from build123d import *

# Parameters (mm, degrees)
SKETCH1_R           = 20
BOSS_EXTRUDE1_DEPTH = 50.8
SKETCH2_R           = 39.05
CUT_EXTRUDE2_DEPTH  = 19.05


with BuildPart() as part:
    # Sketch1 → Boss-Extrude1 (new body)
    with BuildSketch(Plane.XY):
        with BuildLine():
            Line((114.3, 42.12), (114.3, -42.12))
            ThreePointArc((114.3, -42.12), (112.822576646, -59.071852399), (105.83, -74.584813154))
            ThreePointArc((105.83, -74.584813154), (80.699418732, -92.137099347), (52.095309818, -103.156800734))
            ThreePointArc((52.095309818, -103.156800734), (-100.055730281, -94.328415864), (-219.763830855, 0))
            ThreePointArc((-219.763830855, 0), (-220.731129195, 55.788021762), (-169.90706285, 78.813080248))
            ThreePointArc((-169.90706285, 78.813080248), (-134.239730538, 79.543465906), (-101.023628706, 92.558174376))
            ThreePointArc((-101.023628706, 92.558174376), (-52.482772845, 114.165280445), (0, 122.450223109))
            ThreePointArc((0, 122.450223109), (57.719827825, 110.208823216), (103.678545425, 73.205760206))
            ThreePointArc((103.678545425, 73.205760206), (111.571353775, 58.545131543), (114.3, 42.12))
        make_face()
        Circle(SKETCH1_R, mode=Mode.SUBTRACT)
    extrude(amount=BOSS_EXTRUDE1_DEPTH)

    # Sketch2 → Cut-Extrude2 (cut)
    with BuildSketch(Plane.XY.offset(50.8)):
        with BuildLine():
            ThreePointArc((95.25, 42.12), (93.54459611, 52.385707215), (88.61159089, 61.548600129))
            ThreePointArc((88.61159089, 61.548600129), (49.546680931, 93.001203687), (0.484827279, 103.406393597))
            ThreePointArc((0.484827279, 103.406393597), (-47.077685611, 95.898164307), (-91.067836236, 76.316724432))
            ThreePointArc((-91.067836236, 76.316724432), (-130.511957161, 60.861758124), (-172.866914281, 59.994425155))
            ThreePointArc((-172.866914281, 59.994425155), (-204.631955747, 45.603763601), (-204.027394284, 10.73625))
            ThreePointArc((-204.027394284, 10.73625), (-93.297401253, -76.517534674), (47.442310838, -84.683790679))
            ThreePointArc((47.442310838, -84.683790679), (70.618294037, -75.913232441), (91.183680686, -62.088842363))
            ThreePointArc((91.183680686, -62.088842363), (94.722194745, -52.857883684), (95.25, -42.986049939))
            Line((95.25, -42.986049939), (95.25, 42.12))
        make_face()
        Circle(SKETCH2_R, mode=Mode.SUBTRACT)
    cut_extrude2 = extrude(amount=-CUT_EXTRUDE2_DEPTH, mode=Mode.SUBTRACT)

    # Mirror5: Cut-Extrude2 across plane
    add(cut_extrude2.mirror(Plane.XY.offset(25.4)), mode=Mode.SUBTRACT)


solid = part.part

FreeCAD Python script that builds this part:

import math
import FreeCAD as App
import Part
import Sketcher

V = App.Vector
Q = App.Units.Quantity

doc = App.newDocument("Part")
body = doc.addObject("PartDesign::Body", "Body")

sketch1 = body.newObject("Sketcher::SketchObject", "Sketch")
sketch1.AttachmentSupport = (doc.getObject("XY_Plane"), [""])
sketch1.MapMode = "FlatFace"
sketch1.addGeometry(Part.LineSegment(V(114, -42, 0), V(114, 42, 0)), False)
sketch1.addGeometry(Part.ArcOfCircle(Part.Circle(V(63, 42, 0), V(0, 0, 1), 51), math.radians(0), math.radians(38)), False)
sketch1.addGeometry(Part.ArcOfCircle(Part.Circle(V(3, -5, 0), V(0, 0, 1), 127), math.radians(38), math.radians(91)), False)
sketch1.addGeometry(Part.ArcOfCircle(Part.Circle(V(5, -81, 0), V(0, 0, 1), 203), math.radians(91), math.radians(122)), False)
sketch1.addGeometry(Part.ArcOfCircle(Part.Circle(V(-154, 179, 0), V(0, 0, 1), 102), math.radians(-99), math.radians(-58)), False)
sketch1.addGeometry(Part.ArcOfCircle(Part.Circle(V(-178, 29, 0), V(0, 0, 1), 51), math.radians(81), math.radians(214)), False)
sketch1.addGeometry(Part.ArcOfCircle(Part.Circle(V(-10, 143, 0), V(0, 0, 1), 254), math.radians(-146), math.radians(-76)), False)
sketch1.addGeometry(Part.ArcOfCircle(Part.Circle(V(21, 20, 0), V(0, 0, 1), 127), math.radians(-76), math.radians(-48)), False)
sketch1.addGeometry(Part.ArcOfCircle(Part.Circle(V(64, -46, 0), V(0, 0, 1), 51), math.radians(-34), math.radians(5)), False)
sketch1.addGeometry(Part.Circle(V(0, 0, 0), V(0, 0, 1), 20), False)
sketch1.addConstraint(Sketcher.Constraint("Tangent", 0, 2, 1, 1))
sketch1.addConstraint(Sketcher.Constraint("Tangent", 1, 2, 2, 1))
sketch1.addConstraint(Sketcher.Constraint("Tangent", 2, 2, 3, 1))
sketch1.addConstraint(Sketcher.Constraint("Tangent", 3, 2, 4, 2))
sketch1.addConstraint(Sketcher.Constraint("Tangent", 4, 1, 5, 1))
sketch1.addConstraint(Sketcher.Constraint("Tangent", 5, 2, 6, 1))
sketch1.addConstraint(Sketcher.Constraint("Tangent", 6, 2, 7, 1))
sketch1.addConstraint(Sketcher.Constraint("Coincident", 7, 2, 8, 1))
sketch1.addConstraint(Sketcher.Constraint("Coincident", 8, 2, 0, 1))
sketch1.addConstraint(Sketcher.Constraint("Vertical", 0))
sketch1.addConstraint(Sketcher.Constraint("Coincident", 9, 3, -1, 1))
sketch1.addConstraint(Sketcher.Constraint("Equal", 1, 5))
sketch1.addConstraint(Sketcher.Constraint("Equal", 2, 7))
sketch1.addConstraint(Sketcher.Constraint("Equal", 5, 8))
sketch1.addConstraint(Sketcher.Constraint("PointOnObject", 2, 2, -2))
sketch1.addConstraint(Sketcher.Constraint("PointOnObject", 5, 2, -1))
sketch1.addConstraint(Sketcher.Constraint("Radius", 1, Q("2 in")))
sketch1.addConstraint(Sketcher.Constraint("Radius", 2, Q("5 in")))
sketch1.addConstraint(Sketcher.Constraint("Radius", 3, Q("8 in")))
sketch1.addConstraint(Sketcher.Constraint("Radius", 4, Q("4 in")))
sketch1.addConstraint(Sketcher.Constraint("Radius", 6, Q("10 in")))
sketch1.addConstraint(Sketcher.Constraint("DistanceX", 5, 3, -1, 1, Q("7 in")))
sketch1.addConstraint(Sketcher.Constraint("DistanceX", -1, 1, 1, 3, Q("2.5 in")))
sketch1.addConstraint(Sketcher.Constraint("Diameter", 9, Q("40 mm")))
sketch1.addConstraint(Sketcher.Constraint("DistanceY", 7, 3, 1, 3, Q("0.871 in")))
sketch1.addConstraint(Sketcher.Constraint("DistanceY", 0, 1, 0, 2, Q("84.24 mm")))
sketch1.addConstraint(Sketcher.Constraint("DistanceY", -1, 1, 1, 3, Q("42.12 mm")))
sketch1.addConstraint(Sketcher.Constraint("DistanceY", -1, 1, 5, 3, Q("28.63 mm")))
sketch1.addConstraint(Sketcher.Constraint("DistanceX", -1, 1, 7, 2, Q("105.83 mm")))
sketch1.addConstraint(Sketcher.Constraint("DistanceY", 3, 3, 4, 3, Q("259.863199 mm")))
pad1 = body.newObject("PartDesign::Pad", "Pad")
pad1.Profile = sketch1
pad1.Length = Q("2 in")

sketch2 = body.newObject("Sketcher::SketchObject", "Sketch001")
sketch2.AttachmentSupport = (doc.getObject("XY_Plane"), [""])
sketch2.MapMode = "FlatFace"
sketch2.AttachmentOffset = App.Placement(V(0, 0, 2 * 25.4), App.Rotation())
sketch2.addGeometry(Part.ArcOfCircle(Part.Circle(V(64, 42, 0), V(0, 0, 1), 32), math.radians(0), math.radians(38)), False)
sketch2.addGeometry(Part.ArcOfCircle(Part.Circle(V(3, -5, 0), V(0, 0, 1), 108), math.radians(38), math.radians(91)), False)
sketch2.addGeometry(Part.ArcOfCircle(Part.Circle(V(5, -81, 0), V(0, 0, 1), 184), math.radians(91), math.radians(122)), False)
sketch2.addGeometry(Part.ArcOfCircle(Part.Circle(V(-154, 179, 0), V(0, 0, 1), 121), math.radians(-99), math.radians(-58)), False)
sketch2.addGeometry(Part.ArcOfCircle(Part.Circle(V(-178, 29, 0), V(0, 0, 1), 32), math.radians(81), math.radians(214)), False)
sketch2.addGeometry(Part.ArcOfCircle(Part.Circle(V(-10, 143, 0), V(0, 0, 1), 235), math.radians(-146), math.radians(-76)), False)
sketch2.addGeometry(Part.ArcOfCircle(Part.Circle(V(21, 20, 0), V(0, 0, 1), 108), math.radians(-76), math.radians(-49)), False)
sketch2.addGeometry(Part.ArcOfCircle(Part.Circle(V(64, -46, 0), V(0, 0, 1), 32), math.radians(-30), math.radians(6)), False)
sketch2.addGeometry(Part.LineSegment(V(95, -43, 0), V(95, 42, 0)), False)
sketch2.addGeometry(Part.Circle(V(0, 0, 0), V(0, 0, 1), 39), False)
sketch2.addConstraint(Sketcher.Constraint("Tangent", 0, 2, 1, 1))
sketch2.addConstraint(Sketcher.Constraint("Tangent", 1, 2, 2, 1))
sketch2.addConstraint(Sketcher.Constraint("Tangent", 2, 2, 3, 2))
sketch2.addConstraint(Sketcher.Constraint("Tangent", 3, 1, 4, 1))
sketch2.addConstraint(Sketcher.Constraint("Tangent", 4, 2, 5, 1))
sketch2.addConstraint(Sketcher.Constraint("Tangent", 5, 2, 6, 1))
sketch2.addConstraint(Sketcher.Constraint("Coincident", 6, 2, 7, 1))
sketch2.addConstraint(Sketcher.Constraint("Coincident", 7, 2, 8, 1))
sketch2.addConstraint(Sketcher.Constraint("Tangent", 8, 2, 0, 1))
sketch2.addConstraint(Sketcher.Constraint("Vertical", 8))
sketch2.addConstraint(Sketcher.Constraint("Coincident", 9, 3, -1, 1))
sketch2.addConstraint(Sketcher.Constraint("Equal", 0, 4))
sketch2.addConstraint(Sketcher.Constraint("Equal", 1, 6))
sketch2.addConstraint(Sketcher.Constraint("Equal", 4, 7))
sketch2.addConstraint(Sketcher.Constraint("Radius", 0, Q("1.25 in")))
sketch2.addConstraint(Sketcher.Constraint("Radius", 1, Q("4.25 in")))
sketch2.addConstraint(Sketcher.Constraint("Radius", 2, Q("7.25 in")))
sketch2.addConstraint(Sketcher.Constraint("Radius", 3, Q("4.75 in")))
sketch2.addConstraint(Sketcher.Constraint("Radius", 5, Q("9.25 in")))
sketch2.addConstraint(Sketcher.Constraint("DistanceX", 4, 3, -1, 1, Q("7 in")))
sketch2.addConstraint(Sketcher.Constraint("DistanceX", -1, 1, 0, 3, Q("2.5 in")))
sketch2.addConstraint(Sketcher.Constraint("Diameter", 9, Q("78.1 mm")))
sketch2.addConstraint(Sketcher.Constraint("DistanceY", 6, 3, 0, 3, Q("0.871 in")))
sketch2.addConstraint(Sketcher.Constraint("DistanceY", 8, 1, 8, 2, Q("85.10605 mm")))
sketch2.addConstraint(Sketcher.Constraint("DistanceY", -1, 1, 0, 3, Q("42.12 mm")))
sketch2.addConstraint(Sketcher.Constraint("DistanceY", -1, 1, 4, 3, Q("28.63 mm")))
sketch2.addConstraint(Sketcher.Constraint("DistanceY", -1, 1, 5, 3, Q("143.15 mm")))
sketch2.addConstraint(Sketcher.Constraint("DistanceY", -1, 1, 0, 2, Q("61.5486 mm")))
sketch2.addConstraint(Sketcher.Constraint("DistanceY", 2, 3, 3, 3, Q("259.863199 mm")))
sketch2.addConstraint(Sketcher.Constraint("DistanceX", 1, 3, 6, 2, Q("87.951499 mm")))
pocket1 = body.newObject("PartDesign::Pocket", "Pocket")
pocket1.Profile = sketch2
pocket1.Length = Q("0.75 in")
doc.recompute()

datumplane = body.newObject("PartDesign::Plane", "DatumPlane")
datumplane.AttachmentSupport = (doc.getObject("XY_Plane"), [""])
datumplane.MapMode = "FlatFace"
datumplane.AttachmentOffset = App.Placement(V(0, 0, 1 * 25.4), App.Rotation())
mirrored = body.newObject("PartDesign::Mirrored", "Mirrored")
mirrored.Originals = [pocket1]
mirrored.MirrorPlane = (datumplane, [""])
body.Tip = mirrored

doc.recompute()
